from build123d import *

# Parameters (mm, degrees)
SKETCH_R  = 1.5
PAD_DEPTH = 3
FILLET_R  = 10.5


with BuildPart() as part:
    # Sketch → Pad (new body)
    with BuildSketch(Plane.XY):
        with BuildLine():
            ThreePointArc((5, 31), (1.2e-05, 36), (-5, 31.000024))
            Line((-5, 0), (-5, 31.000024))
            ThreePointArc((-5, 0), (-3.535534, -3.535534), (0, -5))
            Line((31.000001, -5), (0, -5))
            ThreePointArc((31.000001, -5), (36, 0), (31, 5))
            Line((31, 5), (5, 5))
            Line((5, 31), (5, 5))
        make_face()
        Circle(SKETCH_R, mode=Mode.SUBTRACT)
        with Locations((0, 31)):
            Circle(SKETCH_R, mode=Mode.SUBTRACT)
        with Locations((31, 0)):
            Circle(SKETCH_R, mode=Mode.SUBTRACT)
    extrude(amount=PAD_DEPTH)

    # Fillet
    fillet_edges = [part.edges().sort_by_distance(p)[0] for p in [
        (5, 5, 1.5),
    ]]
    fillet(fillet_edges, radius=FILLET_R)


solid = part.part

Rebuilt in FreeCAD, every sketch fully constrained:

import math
import FreeCAD as App
import Part
import Sketcher
Q = App.Units.Quantity


def edges_at(feature, points):
    """Names of the edges that pass closest to the given points."""
    edges = feature.Shape.Edges
    near = lambda p: min(range(len(edges)), key=lambda i: edges[i].distToShape(Part.Vertex(*p))[0])
    return sorted({f"Edge{near(p) + 1}" for p in points})

doc = App.newDocument("Part")
body = doc.addObject("PartDesign::Body", "Body")

# Sketch on XY plane
sketch1 = body.newObject("Sketcher::SketchObject", "Sketch")
sketch1.AttachmentSupport = (doc.getObject("XY_Plane"), [""])
sketch1.MapMode = "FlatFace"
sketch1.addGeometry([
    Part.ArcOfCircle(Part.Circle(App.Vector(0, 31, 0), App.Vector(0, 0, 1), 5), math.radians(0), math.radians(180)),  # 0
    Part.LineSegment(App.Vector(-5, 31, 0), App.Vector(-5, 0, 0)),  # 1
    Part.ArcOfCircle(Part.Circle(App.Vector(0, 0, 0), App.Vector(0, 0, 1), 5), math.radians(180), math.radians(270)),  # 2
    Part.LineSegment(App.Vector(0, -5, 0), App.Vector(31, -5, 0)),  # 3
    Part.ArcOfCircle(Part.Circle(App.Vector(31, 0, 0), App.Vector(0, 0, 1), 5), math.radians(-90), math.radians(90)),  # 4
    Part.LineSegment(App.Vector(31, 5, 0), App.Vector(5, 5, 0)),  # 5
    Part.LineSegment(App.Vector(5, 5, 0), App.Vector(5, 31, 0)),  # 6
    Part.Circle(App.Vector(0, 0, 0), App.Vector(0, 0, 1), 1.5),  # 7
    Part.Circle(App.Vector(31, 0, 0), App.Vector(0, 0, 1), 1.5),  # 8
    Part.Circle(App.Vector(0, 31, 0), App.Vector(0, 0, 1), 1.5),  # 9
], False)
sketch1.addConstraint([
    Sketcher.Constraint("Coincident", 0, 2, 1, 1),
    Sketcher.Constraint("Tangent", 1, 2, 2, 1),
    Sketcher.Constraint("Tangent", 2, 2, 3, 1),
    Sketcher.Constraint("Tangent", 3, 2, 4, 1),
    Sketcher.Constraint("Tangent", 4, 2, 5, 1),
    Sketcher.Constraint("Coincident", 5, 2, 6, 1),
    Sketcher.Constraint("Tangent", 6, 2, 0, 1),
    Sketcher.Constraint("Vertical", 1),
    Sketcher.Constraint("Horizontal", 3),
    Sketcher.Constraint("Horizontal", 5),
    Sketcher.Constraint("Vertical", 6),
    Sketcher.Constraint("Coincident", 2, 3, -1, 1),
    Sketcher.Constraint("Coincident", 7, 3, -1, 1),
    Sketcher.Constraint("Coincident", 8, 3, 4, 3),
    Sketcher.Constraint("Coincident", 9, 3, 0, 3),
    Sketcher.Constraint("Equal", 0, 2),
    Sketcher.Constraint("Equal", 2, 4),
    Sketcher.Constraint("Equal", 7, 8),
    Sketcher.Constraint("Equal", 8, 9),
    Sketcher.Constraint("Equal", 5, 6),
    Sketcher.Constraint("Diameter", 7, Q("3 mm")),
    Sketcher.Constraint("Radius", 0, Q("5 mm")),
    Sketcher.Constraint("DistanceX", 3, 1, 3, 2, Q("31.000001 mm")),
    Sketcher.Constraint("DistanceY", 1, 2, 1, 1, Q("31.000024 mm")),
])
pad1 = body.newObject("PartDesign::Pad", "Pad")
pad1.Profile = sketch1
pad1.Length = 3
doc.recompute()

fillet = body.newObject("PartDesign::Fillet", "Fillet")
fillet.Base = (pad1, edges_at(pad1, [(5, 5, 1.5)]))
fillet.Radius = 10.5

doc.recompute()
